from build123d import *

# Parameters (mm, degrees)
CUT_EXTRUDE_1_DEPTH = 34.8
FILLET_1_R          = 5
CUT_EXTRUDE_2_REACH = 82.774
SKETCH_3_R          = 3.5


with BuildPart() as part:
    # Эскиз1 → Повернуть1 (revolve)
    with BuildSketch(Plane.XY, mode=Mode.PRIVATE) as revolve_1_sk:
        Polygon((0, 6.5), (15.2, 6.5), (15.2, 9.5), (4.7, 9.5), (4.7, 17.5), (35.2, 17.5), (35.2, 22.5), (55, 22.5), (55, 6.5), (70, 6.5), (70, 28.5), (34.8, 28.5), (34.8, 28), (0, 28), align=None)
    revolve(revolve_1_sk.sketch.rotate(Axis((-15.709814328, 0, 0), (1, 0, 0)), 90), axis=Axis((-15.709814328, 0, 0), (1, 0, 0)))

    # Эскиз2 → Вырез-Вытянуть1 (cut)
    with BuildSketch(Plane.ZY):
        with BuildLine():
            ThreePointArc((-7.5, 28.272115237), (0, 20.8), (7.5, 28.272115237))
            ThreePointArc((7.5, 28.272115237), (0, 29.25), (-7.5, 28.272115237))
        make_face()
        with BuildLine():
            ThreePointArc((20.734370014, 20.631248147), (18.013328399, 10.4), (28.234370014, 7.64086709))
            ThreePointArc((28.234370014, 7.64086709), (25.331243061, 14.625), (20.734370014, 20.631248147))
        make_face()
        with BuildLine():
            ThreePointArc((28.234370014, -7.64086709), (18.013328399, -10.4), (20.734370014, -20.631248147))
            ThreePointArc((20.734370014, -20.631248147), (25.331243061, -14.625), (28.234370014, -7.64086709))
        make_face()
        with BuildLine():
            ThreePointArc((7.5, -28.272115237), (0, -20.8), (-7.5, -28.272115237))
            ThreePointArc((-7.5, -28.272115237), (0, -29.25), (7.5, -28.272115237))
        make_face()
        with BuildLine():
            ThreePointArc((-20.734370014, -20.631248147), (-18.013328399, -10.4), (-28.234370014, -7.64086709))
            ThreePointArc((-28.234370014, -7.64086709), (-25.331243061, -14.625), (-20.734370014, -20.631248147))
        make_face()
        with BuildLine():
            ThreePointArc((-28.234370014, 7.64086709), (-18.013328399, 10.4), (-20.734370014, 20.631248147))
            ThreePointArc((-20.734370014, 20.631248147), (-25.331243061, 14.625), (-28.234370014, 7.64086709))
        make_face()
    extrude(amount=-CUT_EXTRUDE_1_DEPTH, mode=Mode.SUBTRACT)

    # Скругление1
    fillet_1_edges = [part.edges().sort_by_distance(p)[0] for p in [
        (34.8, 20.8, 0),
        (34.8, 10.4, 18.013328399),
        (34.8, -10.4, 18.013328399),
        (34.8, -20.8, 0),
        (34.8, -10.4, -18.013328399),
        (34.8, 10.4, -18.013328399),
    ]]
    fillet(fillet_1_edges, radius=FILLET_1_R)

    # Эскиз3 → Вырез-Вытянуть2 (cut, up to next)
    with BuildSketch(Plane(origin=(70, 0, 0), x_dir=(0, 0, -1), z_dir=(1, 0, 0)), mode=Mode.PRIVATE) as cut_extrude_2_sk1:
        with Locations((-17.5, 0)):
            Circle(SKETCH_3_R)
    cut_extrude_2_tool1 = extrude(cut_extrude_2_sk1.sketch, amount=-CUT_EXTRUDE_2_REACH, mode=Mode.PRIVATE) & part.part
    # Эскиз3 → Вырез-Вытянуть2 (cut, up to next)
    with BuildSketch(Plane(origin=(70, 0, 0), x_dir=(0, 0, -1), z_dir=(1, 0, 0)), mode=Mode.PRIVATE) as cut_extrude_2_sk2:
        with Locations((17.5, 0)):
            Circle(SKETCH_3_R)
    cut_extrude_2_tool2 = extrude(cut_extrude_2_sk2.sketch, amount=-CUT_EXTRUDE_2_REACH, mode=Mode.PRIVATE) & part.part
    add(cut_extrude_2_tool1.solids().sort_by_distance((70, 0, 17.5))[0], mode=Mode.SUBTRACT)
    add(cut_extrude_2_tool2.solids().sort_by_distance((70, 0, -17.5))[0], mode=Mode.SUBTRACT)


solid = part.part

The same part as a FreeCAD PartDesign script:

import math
import FreeCAD as App
import Part
import Sketcher
Q = App.Units.Quantity


def edges_at(feature, points):
    """Names of the edges that pass closest to the given points."""
    edges = feature.Shape.Edges
    near = lambda p: min(range(len(edges)), key=lambda i: edges[i].distToShape(Part.Vertex(*p))[0])
    return sorted({f"Edge{near(p) + 1}" for p in points})


def add_polygon(sketch, points):
    """Adds a closed chain of lines whose ends are joined by coincident constraints."""
    first, n = sketch.GeometryCount, len(points)
    for a, b in zip(points, points[1:] + points[:1]):
        sketch.addGeometry(Part.LineSegment(App.Vector(*a, 0), App.Vector(*b, 0)), False)
    for i in range(n):
        sketch.addConstraint(Sketcher.Constraint("Coincident", first + i, 2, first + (i + 1) % n, 1))

doc = App.newDocument("Part")
params = doc.addObject("Spreadsheet::Sheet", "Params")
for row, (alias, value) in enumerate([
    ("sketch1_width", "15 mm"),
    ("sketch1_height", "3 mm"),
    ("sketch1_height2", "8 mm"),
    ("sketch1_height3", "5 mm"),
    ("sketch1_height4", "22 mm"),
    ("revolution_angle", "360 deg"),
    ("sketch2_radius", "29.25 mm"),
    ("pocket1_length", "34.8 mm"),
    ("fillet_radius", "5 mm"),
    ("sketch3_diameter", "7 mm"),
    ("sketch4_diameter", "7 mm"),
], start=1):
    params.set(f"A{row}", alias)
    params.set(f"B{row}", "=" + value)
    params.setAlias(f"B{row}", alias)

body = doc.addObject("PartDesign::Body", "Body")

sketch1 = body.newObject("Sketcher::SketchObject", "Sketch")
sketch1.AttachmentSupport = (doc.getObject("XY_Plane"), [""])
sketch1.MapMode = "FlatFace"
add_polygon(sketch1, [(0, 6.5), (15.2, 6.5), (15.2, 9.5), (4.7, 9.5), (4.7, 17.5), (35.2, 17.5), (35.2, 22.5), (55, 22.5), (55, 6.5), (70, 6.5), (70, 28.5), (34.8, 28.5), (34.8, 28), (0, 28)])
sketch1.addConstraint(Sketcher.Constraint("Horizontal", 0))
sketch1.addConstraint(Sketcher.Constraint("Vertical", 1))
sketch1.addConstraint(Sketcher.Constraint("Horizontal", 2))
sketch1.addConstraint(Sketcher.Constraint("Vertical", 3))
sketch1.addConstraint(Sketcher.Constraint("Horizontal", 4))
sketch1.addConstraint(Sketcher.Constraint("Vertical", 5))
sketch1.addConstraint(Sketcher.Constraint("Horizontal", 6))
sketch1.addConstraint(Sketcher.Constraint("Vertical", 7))
sketch1.addConstraint(Sketcher.Constraint("Horizontal", 8))
sketch1.addConstraint(Sketcher.Constraint("Vertical", 9))
sketch1.addConstraint(Sketcher.Constraint("Horizontal", 10))
sketch1.addConstraint(Sketcher.Constraint("Vertical", 11))
sketch1.addConstraint(Sketcher.Constraint("Horizontal", 12))
sketch1.addConstraint(Sketcher.Constraint("Vertical", 13))
sketch1.addConstraint(Sketcher.Constraint("PointOnObject", 12, 2, -2))
sketch1.addConstraint(Sketcher.Constraint("Horizontal", 0, 2, 7, 2))
sketch1.addConstraint(Sketcher.Constraint("DistanceX", 8, 1, 8, 2, Q("15 mm")))
sketch1.addConstraint(Sketcher.Constraint("DistanceY", 1, 1, 1, 2, Q("3 mm")))
sketch1.addConstraint(Sketcher.Constraint("DistanceY", 3, 1, 3, 2, Q("8 mm")))
sketch1.addConstraint(Sketcher.Constraint("DistanceY", 5, 1, 5, 2, Q("5 mm")))
sketch1.addConstraint(Sketcher.Constraint("DistanceY", 9, 1, 9, 2, Q("22 mm")))
sketch1.addConstraint(Sketcher.Constraint("DistanceX", 0, 1, 0, 2, Q("15.2 mm")))
sketch1.addConstraint(Sketcher.Constraint("DistanceX", 2, 2, 2, 1, Q("10.5 mm")))
sketch1.addConstraint(Sketcher.Constraint("DistanceX", 4, 1, 4, 2, Q("30.5 mm")))
sketch1.addConstraint(Sketcher.Constraint("DistanceX", 6, 1, 6, 2, Q("19.8 mm")))
sketch1.addConstraint(Sketcher.Constraint("DistanceX", 10, 2, 10, 1, Q("35.2 mm")))
sketch1.addConstraint(Sketcher.Constraint("DistanceY", 11, 2, 11, 1, Q("0.5 mm")))
sketch1.addConstraint(Sketcher.Constraint("DistanceY", -1, 1, 11, 2, Q("28 mm")))
sketch1.setExpression("Constraints[30]", "Params.sketch1_width")
sketch1.setExpression("Constraints[31]", "Params.sketch1_height")
sketch1.setExpression("Constraints[32]", "Params.sketch1_height2")
sketch1.setExpression("Constraints[33]", "Params.sketch1_height3")
sketch1.setExpression("Constraints[34]", "Params.sketch1_height4")
revolution = body.newObject("PartDesign::Revolution", "Revolution")
revolution.Profile = sketch1
revolution.ReferenceAxis = (sketch1, ["H_Axis"])
revolution.setExpression("Angle", "Params.revolution_angle")

sketch2 = body.newObject("Sketcher::SketchObject", "Sketch001")
sketch2.AttachmentSupport = (doc.getObject("YZ_Plane"), [""])
sketch2.MapMode = "FlatFace"
sketch2.addGeometry(Part.ArcOfCircle(Part.Circle(App.Vector(28.300052, 0, 0), App.Vector(0, 0, 1), 7.500052), math.radians(90.21342), math.radians(269.78658)), False)
sketch2.addGeometry(Part.ArcOfCircle(Part.Circle(App.Vector(0, 0, 0), App.Vector(0, 0, 1), 29.25), math.radians(-14.857166), math.radians(14.857166)), False)
sketch2.addGeometry(Part.ArcOfCircle(Part.Circle(App.Vector(14.150026, 24.508564, 0), App.Vector(0, 0, 1), 7.500052), math.radians(150.21342), math.radians(329.78658)), False)
sketch2.addGeometry(Part.ArcOfCircle(Part.Circle(App.Vector(0, 0, 0), App.Vector(0, 0, 1), 29.25), math.radians(45.142834), math.radians(74.857166)), False)
sketch2.addGeometry(Part.ArcOfCircle(Part.Circle(App.Vector(-14.150026, 24.508564, 0), App.Vector(0, 0, 1), 7.500052), math.radians(-149.78658), math.radians(29.78658)), False)
sketch2.addGeometry(Part.ArcOfCircle(Part.Circle(App.Vector(0, 0, 0), App.Vector(0, 0, 1), 29.25), math.radians(105.142834), math.radians(134.857166)), False)
sketch2.addGeometry(Part.ArcOfCircle(Part.Circle(App.Vector(-28.300052, 0, 0), App.Vector(0, 0, 1), 7.500052), math.radians(-89.78658), math.radians(89.78658)), False)
sketch2.addGeometry(Part.ArcOfCircle(Part.Circle(App.Vector(0, 0, 0), App.Vector(0, 0, 1), 29.25), math.radians(165.142834), math.radians(194.857166)), False)
sketch2.addGeometry(Part.ArcOfCircle(Part.Circle(App.Vector(-14.150026, -24.508564, 0), App.Vector(0, 0, 1), 7.500052), math.radians(-29.78658), math.radians(149.78658)), False)
sketch2.addGeometry(Part.ArcOfCircle(Part.Circle(App.Vector(0, 0, 0), App.Vector(0, 0, 1), 29.25), math.radians(-134.857166), math.radians(-105.142834)), False)
sketch2.addGeometry(Part.ArcOfCircle(Part.Circle(App.Vector(14.150026, -24.508564, 0), App.Vector(0, 0, 1), 7.500052), math.radians(30.21342), math.radians(209.78658)), False)
sketch2.addGeometry(Part.ArcOfCircle(Part.Circle(App.Vector(0, 0, 0), App.Vector(0, 0, 1), 29.25), math.radians(-74.857166), math.radians(-45.142834)), False)
sketch2.addConstraint(Sketcher.Constraint("Coincident", 0, 1, 1, 2))
sketch2.addConstraint(Sketcher.Constraint("Coincident", 1, 1, 0, 2))
sketch2.addConstraint(Sketcher.Constraint("Coincident", 2, 1, 3, 2))
sketch2.addConstraint(Sketcher.Constraint("Coincident", 3, 1, 2, 2))
sketch2.addConstraint(Sketcher.Constraint("Coincident", 4, 1, 5, 2))
sketch2.addConstraint(Sketcher.Constraint("Coincident", 5, 1, 4, 2))
sketch2.addConstraint(Sketcher.Constraint("Coincident", 6, 1, 7, 2))
sketch2.addConstraint(Sketcher.Constraint("Coincident", 7, 1, 6, 2))
sketch2.addConstraint(Sketcher.Constraint("Coincident", 8, 1, 9, 2))
sketch2.addConstraint(Sketcher.Constraint("Coincident", 9, 1, 8, 2))
sketch2.addConstraint(Sketcher.Constraint("Coincident", 10, 1, 11, 2))
sketch2.addConstraint(Sketcher.Constraint("Coincident", 11, 1, 10, 2))
sketch2.addConstraint(Sketcher.Constraint("Coincident", 1, 3, -1, 1))
sketch2.addConstraint(Sketcher.Constraint("Coincident", 3, 3, -1, 1))
sketch2.addConstraint(Sketcher.Constraint("Coincident", 5, 3, -1, 1))
sketch2.addConstraint(Sketcher.Constraint("Coincident", 7, 3, -1, 1))
sketch2.addConstraint(Sketcher.Constraint("Coincident", 9, 3, -1, 1))
sketch2.addConstraint(Sketcher.Constraint("Coincident", 11, 3, -1, 1))
sketch2.addConstraint(Sketcher.Constraint("Equal", 0, 2))
sketch2.addConstraint(Sketcher.Constraint("Equal", 1, 3))
sketch2.addConstraint(Sketcher.Constraint("Equal", 2, 4))
sketch2.addConstraint(Sketcher.Constraint("Equal", 3, 5))
sketch2.addConstraint(Sketcher.Constraint("Equal", 4, 6))
sketch2.addConstraint(Sketcher.Constraint("Equal", 5, 7))
sketch2.addConstraint(Sketcher.Constraint("Equal", 6, 8))
sketch2.addConstraint(Sketcher.Constraint("Equal", 7, 9))
sketch2.addConstraint(Sketcher.Constraint("Equal", 8, 10))
sketch2.addConstraint(Sketcher.Constraint("Equal", 9, 11))
sketch2.addConstraint(Sketcher.Constraint("Symmetric", 0, 3, 6, 3, -1, 1))
sketch2.addConstraint(Sketcher.Constraint("Symmetric", 2, 3, 8, 3, -1, 1))
sketch2.addConstraint(Sketcher.Constraint("Symmetric", 4, 3, 10, 3, -1, 1))
sketch2.addConstraint(Sketcher.Constraint("Symmetric", 2, 3, 4, 3, -2))
sketch2.addConstraint(Sketcher.Constraint("PointOnObject", 0, 3, -1))
sketch2.addConstraint(Sketcher.Constraint("Radius", 1, Q("29.25 mm")))
sketch2.addConstraint(Sketcher.Constraint("DistanceY", 1, 1, 0, 1, Q("15 mm")))
sketch2.addConstraint(Sketcher.Constraint("DistanceY", 3, 1, 2, 1, Q("7.5 mm")))
sketch2.addConstraint(Sketcher.Constraint("Radius", 0, Q("7.500052 mm")))
sketch2.addConstraint(Sketcher.Constraint("DistanceX", 4, 3, 0, 3, Q("42.450078 mm")))
sketch2.setExpression("Constraints[33]", "Params.sketch2_radius")
pocket1 = body.newObject("PartDesign::Pocket", "Pocket")
pocket1.Profile = sketch2
pocket1.setExpression("Length", "Params.pocket1_length")
pocket1.Reversed = True
doc.recompute()

fillet = body.newObject("PartDesign::Fillet", "Fillet")
fillet.Base = (pocket1, edges_at(pocket1, [
    (34.8, 20.8, 0),
    (34.8, 10.4, 18.013),
    (34.8, -10.4, 18.013),
    (34.8, -20.8, 0),
    (34.8, -10.4, -18.013),
    (34.8, 10.4, -18.013),
]))
fillet.setExpression("Radius", "Params.fillet_radius")

sketch3 = body.newObject("Sketcher::SketchObject", "Sketch002")
sketch3.AttachmentSupport = (doc.getObject("YZ_Plane"), [""])
sketch3.MapMode = "FlatFace"
sketch3.AttachmentOffset = App.Placement(App.Vector(0, 0, 70), App.Rotation())
sketch3.addGeometry(Part.Circle(App.Vector(0, 17.5, 0), App.Vector(0, 0, 1), 3.5), False)
sketch3.addConstraint(Sketcher.Constraint("PointOnObject", 0, 3, -2))
sketch3.addConstraint(Sketcher.Constraint("Diameter", 0, Q("7 mm")))
sketch3.addConstraint(Sketcher.Constraint("DistanceY", -1, 1, 0, 3, Q("17.5 mm")))
sketch3.setExpression("Constraints[1]", "Params.sketch3_diameter")
pocket2 = body.newObject("PartDesign::Pocket", "Pocket001")
pocket2.Profile = sketch3
pocket2.Type = "UpToFirst"

sketch4 = body.newObject("Sketcher::SketchObject", "Sketch003")
sketch4.AttachmentSupport = (doc.getObject("YZ_Plane"), [""])
sketch4.MapMode = "FlatFace"
sketch4.AttachmentOffset = App.Placement(App.Vector(0, 0, 70), App.Rotation())
sketch4.addGeometry(Part.Circle(App.Vector(0, -17.5, 0), App.Vector(0, 0, 1), 3.5), False)
sketch4.addConstraint(Sketcher.Constraint("PointOnObject", 0, 3, -2))
sketch4.addConstraint(Sketcher.Constraint("Diameter", 0, Q("7 mm")))
sketch4.addConstraint(Sketcher.Constraint("DistanceY", 0, 3, -1, 1, Q("17.5 mm")))
sketch4.setExpression("Constraints[1]", "Params.sketch4_diameter")
pocket3 = body.newObject("PartDesign::Pocket", "Pocket002")
pocket3.Profile = sketch4
pocket3.Type = "UpToFirst"

doc.recompute()
